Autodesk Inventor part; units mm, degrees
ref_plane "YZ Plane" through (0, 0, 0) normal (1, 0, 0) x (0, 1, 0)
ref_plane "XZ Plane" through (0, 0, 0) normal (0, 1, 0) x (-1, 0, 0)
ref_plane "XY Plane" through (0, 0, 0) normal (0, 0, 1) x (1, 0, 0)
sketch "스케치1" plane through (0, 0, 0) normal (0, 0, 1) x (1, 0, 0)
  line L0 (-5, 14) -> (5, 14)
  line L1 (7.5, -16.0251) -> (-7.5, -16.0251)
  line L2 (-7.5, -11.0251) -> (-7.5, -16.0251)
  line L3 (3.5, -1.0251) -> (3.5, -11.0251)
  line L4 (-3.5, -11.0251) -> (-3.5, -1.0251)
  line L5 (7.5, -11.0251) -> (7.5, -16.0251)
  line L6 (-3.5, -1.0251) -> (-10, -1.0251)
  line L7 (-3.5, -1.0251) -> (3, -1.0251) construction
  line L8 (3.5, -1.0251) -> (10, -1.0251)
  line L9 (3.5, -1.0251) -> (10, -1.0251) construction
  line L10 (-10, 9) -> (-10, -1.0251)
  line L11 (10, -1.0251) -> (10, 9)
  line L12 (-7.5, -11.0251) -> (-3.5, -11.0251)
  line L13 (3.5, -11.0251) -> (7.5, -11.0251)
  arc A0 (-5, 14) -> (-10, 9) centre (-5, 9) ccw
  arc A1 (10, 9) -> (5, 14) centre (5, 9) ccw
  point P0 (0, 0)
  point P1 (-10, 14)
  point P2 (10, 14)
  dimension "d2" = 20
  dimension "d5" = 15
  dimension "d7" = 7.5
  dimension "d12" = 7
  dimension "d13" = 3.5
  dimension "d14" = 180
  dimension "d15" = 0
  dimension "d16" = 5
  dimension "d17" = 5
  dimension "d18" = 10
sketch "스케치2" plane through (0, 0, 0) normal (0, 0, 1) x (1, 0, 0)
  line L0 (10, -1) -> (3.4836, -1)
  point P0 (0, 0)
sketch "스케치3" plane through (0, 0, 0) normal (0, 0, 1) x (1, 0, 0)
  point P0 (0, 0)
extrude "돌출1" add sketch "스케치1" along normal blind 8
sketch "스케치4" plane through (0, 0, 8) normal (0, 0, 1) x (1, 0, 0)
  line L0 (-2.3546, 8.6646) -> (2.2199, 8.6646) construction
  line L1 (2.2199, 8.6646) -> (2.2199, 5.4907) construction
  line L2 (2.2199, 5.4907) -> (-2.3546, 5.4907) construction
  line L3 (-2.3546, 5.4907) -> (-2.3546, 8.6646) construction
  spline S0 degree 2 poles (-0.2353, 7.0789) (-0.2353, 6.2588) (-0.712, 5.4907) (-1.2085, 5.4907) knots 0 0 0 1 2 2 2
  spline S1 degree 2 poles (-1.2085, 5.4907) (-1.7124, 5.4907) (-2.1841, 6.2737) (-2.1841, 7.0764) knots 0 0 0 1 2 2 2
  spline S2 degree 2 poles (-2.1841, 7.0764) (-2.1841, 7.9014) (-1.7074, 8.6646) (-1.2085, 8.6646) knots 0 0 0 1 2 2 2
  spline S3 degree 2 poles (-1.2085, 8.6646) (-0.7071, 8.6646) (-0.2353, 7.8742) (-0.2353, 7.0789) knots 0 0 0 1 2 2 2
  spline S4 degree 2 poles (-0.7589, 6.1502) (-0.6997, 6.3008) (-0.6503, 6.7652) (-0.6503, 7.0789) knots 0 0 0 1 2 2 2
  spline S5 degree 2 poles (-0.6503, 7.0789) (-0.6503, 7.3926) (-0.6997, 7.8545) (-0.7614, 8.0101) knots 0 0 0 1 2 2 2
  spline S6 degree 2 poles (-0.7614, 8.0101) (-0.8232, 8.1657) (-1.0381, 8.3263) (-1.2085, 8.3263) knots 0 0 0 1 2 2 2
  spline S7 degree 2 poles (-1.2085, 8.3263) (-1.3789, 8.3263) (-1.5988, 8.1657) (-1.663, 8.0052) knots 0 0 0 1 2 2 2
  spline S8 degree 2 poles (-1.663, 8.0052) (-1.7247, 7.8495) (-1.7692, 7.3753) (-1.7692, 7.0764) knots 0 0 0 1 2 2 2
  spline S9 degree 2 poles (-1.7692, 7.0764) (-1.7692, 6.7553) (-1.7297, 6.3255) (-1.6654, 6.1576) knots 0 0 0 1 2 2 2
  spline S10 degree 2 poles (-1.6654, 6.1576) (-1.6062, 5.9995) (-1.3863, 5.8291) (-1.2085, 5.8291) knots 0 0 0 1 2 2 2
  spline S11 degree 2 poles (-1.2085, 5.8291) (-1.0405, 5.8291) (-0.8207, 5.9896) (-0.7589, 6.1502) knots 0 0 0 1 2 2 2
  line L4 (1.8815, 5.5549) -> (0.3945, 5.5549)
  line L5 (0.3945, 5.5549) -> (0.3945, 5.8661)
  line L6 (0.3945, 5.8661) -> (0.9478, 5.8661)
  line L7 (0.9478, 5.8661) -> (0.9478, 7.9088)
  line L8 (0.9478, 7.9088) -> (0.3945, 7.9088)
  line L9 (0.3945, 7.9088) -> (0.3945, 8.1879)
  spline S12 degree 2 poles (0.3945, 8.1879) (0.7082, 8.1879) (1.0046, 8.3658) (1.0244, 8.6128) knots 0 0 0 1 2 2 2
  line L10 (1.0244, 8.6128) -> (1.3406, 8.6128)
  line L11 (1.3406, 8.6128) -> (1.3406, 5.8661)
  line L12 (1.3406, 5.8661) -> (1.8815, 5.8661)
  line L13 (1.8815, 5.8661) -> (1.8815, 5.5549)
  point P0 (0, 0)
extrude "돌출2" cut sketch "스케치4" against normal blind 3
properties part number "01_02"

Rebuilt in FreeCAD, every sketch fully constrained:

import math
import FreeCAD as App
import Part
import Sketcher
from FreeCAD import Vector

doc = App.newDocument("Part")
body = doc.addObject("PartDesign::Body", "Body")

# Sketch on XY plane
sketch1 = body.newObject("Sketcher::SketchObject", "Sketch")
sketch1.AttachmentSupport = (doc.getObject("XY_Plane"), [""])
sketch1.MapMode = "FlatFace"
sketch1.addGeometry([
    Part.LineSegment(Vector(5, 14, 0), Vector(-5, 14, 0)),  # 0
    Part.ArcOfCircle(Part.Circle(Vector(-5, 9, 0), Vector(0, 0, 1), 5), math.radians(90), math.radians(180)),  # 1
    Part.LineSegment(Vector(-10, 9, 0), Vector(-10, -1.0251, 0)),  # 2
    Part.LineSegment(Vector(-10, -1.0251, 0), Vector(-3.5, -1.0251, 0)),  # 3
    Part.LineSegment(Vector(-3.5, -1.0251, 0), Vector(-3.5, -11.0251, 0)),  # 4
    Part.LineSegment(Vector(-3.5, -11.0251, 0), Vector(-7.5, -11.0251, 0)),  # 5
    Part.LineSegment(Vector(-7.5, -11.0251, 0), Vector(-7.5, -16.0251, 0)),  # 6
    Part.LineSegment(Vector(-7.5, -16.0251, 0), Vector(7.5, -16.0251, 0)),  # 7
    Part.LineSegment(Vector(7.5, -16.0251, 0), Vector(7.5, -11.0251, 0)),  # 8
    Part.LineSegment(Vector(7.5, -11.0251, 0), Vector(3.5, -11.0251, 0)),  # 9
    Part.LineSegment(Vector(3.5, -11.0251, 0), Vector(3.5, -1.0251, 0)),  # 10
    Part.LineSegment(Vector(3.5, -1.0251, 0), Vector(10, -1.0251, 0)),  # 11
    Part.LineSegment(Vector(10, -1.0251, 0), Vector(10, 9, 0)),  # 12
    Part.ArcOfCircle(Part.Circle(Vector(5, 9, 0), Vector(0, 0, 1), 5), math.radians(0), math.radians(90)),  # 13
], False)
sketch1.addConstraint([
    Sketcher.Constraint("Tangent", 0, 2, 1, 1),
    Sketcher.Constraint("Tangent", 1, 2, 2, 1),
    Sketcher.Constraint("Coincident", 2, 2, 3, 1),
    Sketcher.Constraint("Coincident", 3, 2, 4, 1),
    Sketcher.Constraint("Coincident", 4, 2, 5, 1),
    Sketcher.Constraint("Coincident", 5, 2, 6, 1),
    Sketcher.Constraint("Coincident", 6, 2, 7, 1),
    Sketcher.Constraint("Coincident", 7, 2, 8, 1),
    Sketcher.Constraint("Coincident", 8, 2, 9, 1),
    Sketcher.Constraint("Coincident", 9, 2, 10, 1),
    Sketcher.Constraint("Coincident", 10, 2, 11, 1),
    Sketcher.Constraint("Coincident", 11, 2, 12, 1),
    Sketcher.Constraint("Tangent", 12, 2, 13, 1),
    Sketcher.Constraint("Tangent", 13, 2, 0, 1),
    Sketcher.Constraint("Horizontal", 0),
    Sketcher.Constraint("Vertical", 2),
    Sketcher.Constraint("Horizontal", 3),
    Sketcher.Constraint("Vertical", 4),
    Sketcher.Constraint("Horizontal", 5),
    Sketcher.Constraint("Vertical", 6),
    Sketcher.Constraint("Horizontal", 7),
    Sketcher.Constraint("Vertical", 8),
    Sketcher.Constraint("Horizontal", 9),
    Sketcher.Constraint("Vertical", 10),
    Sketcher.Constraint("Horizontal", 11),
    Sketcher.Constraint("Vertical", 12),
    Sketcher.Constraint("Equal", 1, 13),
    Sketcher.Constraint("Symmetric", 5, 2, 8, 2, -2),
    Sketcher.Constraint("Symmetric", 3, 2, 10, 2, -2),
    Sketcher.Constraint("Equal", 3, 11),
    Sketcher.Constraint("Equal", 0, 4),
    Sketcher.Constraint("Radius", 1, 5.0),
    Sketcher.Constraint("DistanceX", 0, 2, 0, 1, 10.0),
    Sketcher.Constraint("DistanceX", 7, 1, 7, 2, 15.0),
    Sketcher.Constraint("DistanceY", 6, 2, 6, 1, 5.0),
    Sketcher.Constraint("DistanceX", 4, 2, 9, 2, 7.0),
    Sketcher.Constraint("DistanceY", -1, 1, 1, 3, 9.0),
    Sketcher.Constraint("DistanceY", 2, 2, 2, 1, 10.025),
])
pad1 = body.newObject("PartDesign::Pad", "Pad")
pad1.Profile = sketch1
pad1.Length = 8

# Sketch on XY plane
sketch2 = body.newObject("Sketcher::SketchObject", "Sketch001")
sketch2.AttachmentSupport = (doc.getObject("XY_Plane"), [""])
sketch2.MapMode = "FlatFace"
sketch2.AttachmentOffset = App.Placement(Vector(0, 0, 8), App.Rotation())
sketch2.addGeometry([
    Part.BSplineCurve([Vector(-0.2353, 7.0789, 0), Vector(-0.2353, 6.2588, 0), Vector(-0.712, 5.4907, 0), Vector(-1.2085, 5.4907, 0)], [3, 1, 3], [0, 1, 2], False, 2, [1, 1, 1, 1], False),  # 0
    Part.BSplineCurve([Vector(-1.2085, 8.6646, 0), Vector(-0.7071, 8.6646, 0), Vector(-0.2353, 7.8742, 0), Vector(-0.2353, 7.0789, 0)], [3, 1, 3], [0, 1, 2], False, 2, [1, 1, 1, 1], False),  # 1
    Part.BSplineCurve([Vector(-2.1841, 7.0764, 0), Vector(-2.1841, 7.9014, 0), Vector(-1.7074, 8.6646, 0), Vector(-1.2085, 8.6646, 0)], [3, 1, 3], [0, 1, 2], False, 2, [1, 1, 1, 1], False),  # 2
    Part.BSplineCurve([Vector(-1.2085, 5.4907, 0), Vector(-1.7124, 5.4907, 0), Vector(-2.1841, 6.2737, 0), Vector(-2.1841, 7.0764, 0)], [3, 1, 3], [0, 1, 2], False, 2, [1, 1, 1, 1], False),  # 3
    Part.BSplineCurve([Vector(-0.7589, 6.1502, 0), Vector(-0.6997, 6.3008, 0), Vector(-0.6503, 6.7652, 0), Vector(-0.6503, 7.0789, 0)], [3, 1, 3], [0, 1, 2], False, 2, [1, 1, 1, 1], False),  # 4
    Part.BSplineCurve([Vector(-1.2085, 5.8291, 0), Vector(-1.0405, 5.8291, 0), Vector(-0.8207, 5.9896, 0), Vector(-0.7589, 6.1502, 0)], [3, 1, 3], [0, 1, 2], False, 2, [1, 1, 1, 1], False),  # 5
    Part.BSplineCurve([Vector(-1.6654, 6.1576, 0), Vector(-1.6062, 5.9995, 0), Vector(-1.3863, 5.8291, 0), Vector(-1.2085, 5.8291, 0)], [3, 1, 3], [0, 1, 2], False, 2, [1, 1, 1, 1], False),  # 6
    Part.BSplineCurve([Vector(-1.7692, 7.0764, 0), Vector(-1.7692, 6.7553, 0), Vector(-1.7297, 6.3255, 0), Vector(-1.6654, 6.1576, 0)], [3, 1, 3], [0, 1, 2], False, 2, [1, 1, 1, 1], False),  # 7
    Part.BSplineCurve([Vector(-1.663, 8.0052, 0), Vector(-1.7247, 7.8495, 0), Vector(-1.7692, 7.3753, 0), Vector(-1.7692, 7.0764, 0)], [3, 1, 3], [0, 1, 2], False, 2, [1, 1, 1, 1], False),  # 8
    Part.BSplineCurve([Vector(-1.2085, 8.3263, 0), Vector(-1.3789, 8.3263, 0), Vector(-1.5988, 8.1657, 0), Vector(-1.663, 8.0052, 0)], [3, 1, 3], [0, 1, 2], False, 2, [1, 1, 1, 1], False),  # 9
    Part.BSplineCurve([Vector(-0.7614, 8.0101, 0), Vector(-0.8232, 8.1657, 0), Vector(-1.0381, 8.3263, 0), Vector(-1.2085, 8.3263, 0)], [3, 1, 3], [0, 1, 2], False, 2, [1, 1, 1, 1], False),  # 10
    Part.BSplineCurve([Vector(-0.6503, 7.0789, 0), Vector(-0.6503, 7.3926, 0), Vector(-0.6997, 7.8545, 0), Vector(-0.7614, 8.0101, 0)], [3, 1, 3], [0, 1, 2], False, 2, [1, 1, 1, 1], False),  # 11
    Part.LineSegment(Vector(0.3945, 5.5549, 0), Vector(1.8815, 5.5549, 0)),  # 12
    Part.LineSegment(Vector(1.8815, 5.5549, 0), Vector(1.8815, 5.8661, 0)),  # 13
    Part.LineSegment(Vector(1.8815, 5.8661, 0), Vector(1.3406, 5.8661, 0)),  # 14
    Part.LineSegment(Vector(1.3406, 5.8661, 0), Vector(1.3406, 8.6128, 0)),  # 15
    Part.LineSegment(Vector(1.3406, 8.6128, 0), Vector(1.0244, 8.6128, 0)),  # 16
    Part.BSplineCurve([Vector(0.3945, 8.1879, 0), Vector(0.7082, 8.1879, 0), Vector(1.0046, 8.3658, 0), Vector(1.0244, 8.6128, 0)], [3, 1, 3], [0, 1, 2], False, 2, [1, 1, 1, 1], False),  # 17
    Part.LineSegment(Vector(0.3945, 8.1879, 0), Vector(0.3945, 7.9088, 0)),  # 18
    Part.LineSegment(Vector(0.3945, 7.9088, 0), Vector(0.9478, 7.9088, 0)),  # 19
    Part.LineSegment(Vector(0.9478, 7.9088, 0), Vector(0.9478, 5.8661, 0)),  # 20
    Part.LineSegment(Vector(0.9478, 5.8661, 0), Vector(0.3945, 5.8661, 0)),  # 21
    Part.LineSegment(Vector(0.3945, 5.8661, 0), Vector(0.3945, 5.5549, 0)),  # 22
], False)
sketch2.addConstraint([
    Sketcher.Constraint("Block", 0),
    Sketcher.Constraint("Block", 1),
    Sketcher.Constraint("Block", 2),
    Sketcher.Constraint("Block", 3),
    Sketcher.Constraint("Block", 4),
    Sketcher.Constraint("Block", 5),
    Sketcher.Constraint("Block", 6),
    Sketcher.Constraint("Block", 7),
    Sketcher.Constraint("Block", 8),
    Sketcher.Constraint("Block", 9),
    Sketcher.Constraint("Block", 10),
    Sketcher.Constraint("Block", 11),
    Sketcher.Constraint("Block", 17),
    Sketcher.Constraint("Coincident", 12, 2, 13, 1),
    Sketcher.Constraint("Coincident", 13, 2, 14, 1),
    Sketcher.Constraint("Coincident", 14, 2, 15, 1),
    Sketcher.Constraint("Coincident", 15, 2, 16, 1),
    Sketcher.Constraint("Coincident", 16, 2, 17, 2),
    Sketcher.Constraint("Coincident", 17, 1, 18, 1),
    Sketcher.Constraint("Coincident", 18, 2, 19, 1),
    Sketcher.Constraint("Coincident", 19, 2, 20, 1),
    Sketcher.Constraint("Coincident", 20, 2, 21, 1),
    Sketcher.Constraint("Coincident", 21, 2, 22, 1),
    Sketcher.Constraint("Coincident", 22, 2, 12, 1),
    Sketcher.Constraint("Horizontal", 12),
    Sketcher.Constraint("Vertical", 13),
    Sketcher.Constraint("Horizontal", 14),
    Sketcher.Constraint("Vertical", 15),
    Sketcher.Constraint("Horizontal", 16),
    Sketcher.Constraint("Vertical", 18),
    Sketcher.Constraint("Horizontal", 19),
    Sketcher.Constraint("Vertical", 20),
    Sketcher.Constraint("Horizontal", 21),
    Sketcher.Constraint("Vertical", 22),
    Sketcher.Constraint("Horizontal", 14, 2, 20, 2),
    Sketcher.Constraint("Vertical", 18, 2, 21, 2),
    Sketcher.Constraint("DistanceX", 12, 1, 12, 2, 1.487),
    Sketcher.Constraint("DistanceX", 14, 2, 14, 1, 0.541),
    Sketcher.Constraint("DistanceY", 18, 2, 18, 1, 0.279),
    Sketcher.Constraint("DistanceX", 19, 1, 19, 2, 0.5533),
    Sketcher.Constraint("DistanceY", 13, 1, 13, 2, 0.3112),
    Sketcher.Constraint("DistanceY", 15, 1, 15, 2, 2.7467),
])
pocket1 = body.newObject("PartDesign::Pocket", "Pocket")
pocket1.Profile = sketch2
pocket1.Length = 3

doc.recompute()
